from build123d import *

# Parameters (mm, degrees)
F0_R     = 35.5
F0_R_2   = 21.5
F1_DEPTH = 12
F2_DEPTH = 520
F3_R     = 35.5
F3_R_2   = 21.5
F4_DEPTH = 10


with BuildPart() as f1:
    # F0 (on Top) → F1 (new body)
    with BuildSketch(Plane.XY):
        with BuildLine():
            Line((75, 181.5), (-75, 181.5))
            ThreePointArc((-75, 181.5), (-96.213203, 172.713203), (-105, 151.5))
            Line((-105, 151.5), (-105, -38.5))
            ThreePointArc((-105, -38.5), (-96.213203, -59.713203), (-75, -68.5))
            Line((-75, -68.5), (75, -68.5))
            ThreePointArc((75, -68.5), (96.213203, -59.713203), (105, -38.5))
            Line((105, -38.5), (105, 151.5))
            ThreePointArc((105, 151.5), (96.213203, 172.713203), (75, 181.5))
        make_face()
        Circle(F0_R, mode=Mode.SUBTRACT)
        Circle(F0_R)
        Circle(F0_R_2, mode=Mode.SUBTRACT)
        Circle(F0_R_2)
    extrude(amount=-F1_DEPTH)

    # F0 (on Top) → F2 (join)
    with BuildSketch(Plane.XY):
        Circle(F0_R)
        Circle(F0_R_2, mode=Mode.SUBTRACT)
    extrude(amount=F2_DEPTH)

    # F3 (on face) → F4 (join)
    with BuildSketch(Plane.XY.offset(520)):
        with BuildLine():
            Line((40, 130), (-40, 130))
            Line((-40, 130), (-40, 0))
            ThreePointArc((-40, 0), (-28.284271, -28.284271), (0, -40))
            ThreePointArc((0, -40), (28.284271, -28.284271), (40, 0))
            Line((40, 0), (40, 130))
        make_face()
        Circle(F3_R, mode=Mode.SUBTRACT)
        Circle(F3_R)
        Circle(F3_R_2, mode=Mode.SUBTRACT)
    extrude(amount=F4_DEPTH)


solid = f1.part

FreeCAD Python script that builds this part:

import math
import FreeCAD as App
import Part
import Sketcher
Q = App.Units.Quantity

doc = App.newDocument("Part")
params = doc.addObject("Spreadsheet::Sheet", "Params")
for row, (alias, value) in enumerate([
    ("sketch1_radius", "30.000001 mm"),
    ("sketch1_width", "150 mm"),
    ("sketch1_height", "190 mm"),
    ("pad1_length", "12 mm"),
    ("sketch2_diameter", "71 mm"),
    ("sketch2_diameter2", "43 mm"),
    ("pad2_length", "520 mm"),
    ("sketch3_diameter", "43 mm"),
    ("sketch3_radius", "40.000001 mm"),
    ("sketch3_height", "130 mm"),
    ("pad3_length", "10 mm"),
], start=1):
    params.set(f"A{row}", alias)
    params.set(f"B{row}", "=" + value)
    params.setAlias(f"B{row}", alias)

body = doc.addObject("PartDesign::Body", "Body")

sketch1 = body.newObject("Sketcher::SketchObject", "Sketch")
sketch1.AttachmentSupport = (doc.getObject("XY_Plane"), [""])
sketch1.MapMode = "FlatFace"
sketch1.addGeometry([
    Part.LineSegment(App.Vector(75, 182, 0), App.Vector(-75, 182, 0)),
    Part.ArcOfCircle(Part.Circle(App.Vector(-75, 151, 0), App.Vector(0, 0, 1), 30), math.radians(90), math.radians(180)),
    Part.LineSegment(App.Vector(-105, 152, 0), App.Vector(-105, -38, 0)),
    Part.ArcOfCircle(Part.Circle(App.Vector(-75, -38, 0), App.Vector(0, 0, 1), 30), math.radians(-180), math.radians(-90)),
    Part.LineSegment(App.Vector(-75, -68, 0), App.Vector(75, -68, 0)),
    Part.ArcOfCircle(Part.Circle(App.Vector(75, -38, 0), App.Vector(0, 0, 1), 30), math.radians(-90), math.radians(0)),
    Part.LineSegment(App.Vector(105, -38, 0), App.Vector(105, 152, 0)),
    Part.ArcOfCircle(Part.Circle(App.Vector(75, 151, 0), App.Vector(0, 0, 1), 30), math.radians(0), math.radians(90)),
], False)
sketch1.addConstraint([
    Sketcher.Constraint("Tangent", 0, 2, 1, 1),
    Sketcher.Constraint("Tangent", 1, 2, 2, 1),
    Sketcher.Constraint("Tangent", 2, 2, 3, 1),
    Sketcher.Constraint("Tangent", 3, 2, 4, 1),
    Sketcher.Constraint("Tangent", 4, 2, 5, 1),
    Sketcher.Constraint("Tangent", 5, 2, 6, 1),
    Sketcher.Constraint("Tangent", 6, 2, 7, 1),
    Sketcher.Constraint("Tangent", 7, 2, 0, 1),
    Sketcher.Constraint("Horizontal", 0),
    Sketcher.Constraint("Vertical", 2),
    Sketcher.Constraint("Horizontal", 4),
    Sketcher.Constraint("Vertical", 6),
    Sketcher.Constraint("Equal", 1, 3),
    Sketcher.Constraint("Equal", 3, 5),
    Sketcher.Constraint("Equal", 5, 7),
    Sketcher.Constraint("Radius", 1, Q("30.000001 mm")),
    Sketcher.Constraint("DistanceX", 0, 2, 0, 1, Q("150 mm")),
    Sketcher.Constraint("DistanceY", 2, 2, 2, 1, Q("190 mm")),
    Sketcher.Constraint("DistanceX", 1, 3, -1, 1, Q("74.999999 mm")),
    Sketcher.Constraint("DistanceY", -1, 1, 1, 3, Q("151.499999 mm")),
])
sketch1.setExpression("Constraints[15]", "Params.sketch1_radius")
sketch1.setExpression("Constraints[16]", "Params.sketch1_width")
sketch1.setExpression("Constraints[17]", "Params.sketch1_height")
pad1 = body.newObject("PartDesign::Pad", "Pad")
pad1.Profile = sketch1
pad1.setExpression("Length", "Params.pad1_length")
pad1.Reversed = True

sketch2 = body.newObject("Sketcher::SketchObject", "Sketch001")
sketch2.AttachmentSupport = (doc.getObject("XY_Plane"), [""])
sketch2.MapMode = "FlatFace"
sketch2.addGeometry([
    Part.Circle(App.Vector(0, 0, 0), App.Vector(0, 0, 1), 36),
    Part.Circle(App.Vector(0, 0, 0), App.Vector(0, 0, 1), 22),
], False)
sketch2.addConstraint([
    Sketcher.Constraint("Coincident", 0, 3, -1, 1),
    Sketcher.Constraint("Coincident", 1, 3, -1, 1),
    Sketcher.Constraint("Diameter", 0, Q("71 mm")),
    Sketcher.Constraint("Diameter", 1, Q("43 mm")),
])
sketch2.setExpression("Constraints[2]", "Params.sketch2_diameter")
sketch2.setExpression("Constraints[3]", "Params.sketch2_diameter2")
pad2 = body.newObject("PartDesign::Pad", "Pad001")
pad2.Profile = sketch2
pad2.setExpression("Length", "Params.pad2_length")

sketch3 = body.newObject("Sketcher::SketchObject", "Sketch002")
sketch3.AttachmentSupport = (doc.getObject("XY_Plane"), [""])
sketch3.MapMode = "FlatFace"
sketch3.AttachmentOffset = App.Placement(App.Vector(0, 0, 520), App.Rotation())
sketch3.addGeometry([
    Part.LineSegment(App.Vector(40, 130, 0), App.Vector(-40, 130, 0)),
    Part.LineSegment(App.Vector(-40, 130, 0), App.Vector(-40, 0, 0)),
    Part.ArcOfCircle(Part.Circle(App.Vector(0, 0, 0), App.Vector(0, 0, 1), 40), math.radians(-180), math.radians(-90)),
    Part.ArcOfCircle(Part.Circle(App.Vector(0, 0, 0), App.Vector(0, 0, 1), 40), math.radians(-90), math.radians(0)),
    Part.LineSegment(App.Vector(40, 0, 0), App.Vector(40, 130, 0)),
    Part.Circle(App.Vector(0, 0, 0), App.Vector(0, 0, 1), 22),
], False)
sketch3.addConstraint([
    Sketcher.Constraint("Coincident", 0, 2, 1, 1),
    Sketcher.Constraint("Tangent", 1, 2, 2, 1),
    Sketcher.Constraint("Tangent", 2, 2, 3, 1),
    Sketcher.Constraint("Tangent", 3, 2, 4, 1),
    Sketcher.Constraint("Coincident", 4, 2, 0, 1),
    Sketcher.Constraint("Horizontal", 0),
    Sketcher.Constraint("Vertical", 1),
    Sketcher.Constraint("Vertical", 4),
    Sketcher.Constraint("Coincident", 2, 3, -1, 1),
    Sketcher.Constraint("Coincident", 5, 3, -1, 1),
    Sketcher.Constraint("Equal", 2, 3),
    Sketcher.Constraint("PointOnObject", 2, 2, -2),
    Sketcher.Constraint("Diameter", 5, Q("43 mm")),
    Sketcher.Constraint("Radius", 2, Q("40.000001 mm")),
    Sketcher.Constraint("DistanceY", 1, 2, 1, 1, Q("130 mm")),
])
sketch3.setExpression("Constraints[12]", "Params.sketch3_diameter")
sketch3.setExpression("Constraints[13]", "Params.sketch3_radius")
sketch3.setExpression("Constraints[14]", "Params.sketch3_height")
pad3 = body.newObject("PartDesign::Pad", "Pad002")
pad3.Profile = sketch3
pad3.setExpression("Length", "Params.pad3_length")

doc.recompute()
